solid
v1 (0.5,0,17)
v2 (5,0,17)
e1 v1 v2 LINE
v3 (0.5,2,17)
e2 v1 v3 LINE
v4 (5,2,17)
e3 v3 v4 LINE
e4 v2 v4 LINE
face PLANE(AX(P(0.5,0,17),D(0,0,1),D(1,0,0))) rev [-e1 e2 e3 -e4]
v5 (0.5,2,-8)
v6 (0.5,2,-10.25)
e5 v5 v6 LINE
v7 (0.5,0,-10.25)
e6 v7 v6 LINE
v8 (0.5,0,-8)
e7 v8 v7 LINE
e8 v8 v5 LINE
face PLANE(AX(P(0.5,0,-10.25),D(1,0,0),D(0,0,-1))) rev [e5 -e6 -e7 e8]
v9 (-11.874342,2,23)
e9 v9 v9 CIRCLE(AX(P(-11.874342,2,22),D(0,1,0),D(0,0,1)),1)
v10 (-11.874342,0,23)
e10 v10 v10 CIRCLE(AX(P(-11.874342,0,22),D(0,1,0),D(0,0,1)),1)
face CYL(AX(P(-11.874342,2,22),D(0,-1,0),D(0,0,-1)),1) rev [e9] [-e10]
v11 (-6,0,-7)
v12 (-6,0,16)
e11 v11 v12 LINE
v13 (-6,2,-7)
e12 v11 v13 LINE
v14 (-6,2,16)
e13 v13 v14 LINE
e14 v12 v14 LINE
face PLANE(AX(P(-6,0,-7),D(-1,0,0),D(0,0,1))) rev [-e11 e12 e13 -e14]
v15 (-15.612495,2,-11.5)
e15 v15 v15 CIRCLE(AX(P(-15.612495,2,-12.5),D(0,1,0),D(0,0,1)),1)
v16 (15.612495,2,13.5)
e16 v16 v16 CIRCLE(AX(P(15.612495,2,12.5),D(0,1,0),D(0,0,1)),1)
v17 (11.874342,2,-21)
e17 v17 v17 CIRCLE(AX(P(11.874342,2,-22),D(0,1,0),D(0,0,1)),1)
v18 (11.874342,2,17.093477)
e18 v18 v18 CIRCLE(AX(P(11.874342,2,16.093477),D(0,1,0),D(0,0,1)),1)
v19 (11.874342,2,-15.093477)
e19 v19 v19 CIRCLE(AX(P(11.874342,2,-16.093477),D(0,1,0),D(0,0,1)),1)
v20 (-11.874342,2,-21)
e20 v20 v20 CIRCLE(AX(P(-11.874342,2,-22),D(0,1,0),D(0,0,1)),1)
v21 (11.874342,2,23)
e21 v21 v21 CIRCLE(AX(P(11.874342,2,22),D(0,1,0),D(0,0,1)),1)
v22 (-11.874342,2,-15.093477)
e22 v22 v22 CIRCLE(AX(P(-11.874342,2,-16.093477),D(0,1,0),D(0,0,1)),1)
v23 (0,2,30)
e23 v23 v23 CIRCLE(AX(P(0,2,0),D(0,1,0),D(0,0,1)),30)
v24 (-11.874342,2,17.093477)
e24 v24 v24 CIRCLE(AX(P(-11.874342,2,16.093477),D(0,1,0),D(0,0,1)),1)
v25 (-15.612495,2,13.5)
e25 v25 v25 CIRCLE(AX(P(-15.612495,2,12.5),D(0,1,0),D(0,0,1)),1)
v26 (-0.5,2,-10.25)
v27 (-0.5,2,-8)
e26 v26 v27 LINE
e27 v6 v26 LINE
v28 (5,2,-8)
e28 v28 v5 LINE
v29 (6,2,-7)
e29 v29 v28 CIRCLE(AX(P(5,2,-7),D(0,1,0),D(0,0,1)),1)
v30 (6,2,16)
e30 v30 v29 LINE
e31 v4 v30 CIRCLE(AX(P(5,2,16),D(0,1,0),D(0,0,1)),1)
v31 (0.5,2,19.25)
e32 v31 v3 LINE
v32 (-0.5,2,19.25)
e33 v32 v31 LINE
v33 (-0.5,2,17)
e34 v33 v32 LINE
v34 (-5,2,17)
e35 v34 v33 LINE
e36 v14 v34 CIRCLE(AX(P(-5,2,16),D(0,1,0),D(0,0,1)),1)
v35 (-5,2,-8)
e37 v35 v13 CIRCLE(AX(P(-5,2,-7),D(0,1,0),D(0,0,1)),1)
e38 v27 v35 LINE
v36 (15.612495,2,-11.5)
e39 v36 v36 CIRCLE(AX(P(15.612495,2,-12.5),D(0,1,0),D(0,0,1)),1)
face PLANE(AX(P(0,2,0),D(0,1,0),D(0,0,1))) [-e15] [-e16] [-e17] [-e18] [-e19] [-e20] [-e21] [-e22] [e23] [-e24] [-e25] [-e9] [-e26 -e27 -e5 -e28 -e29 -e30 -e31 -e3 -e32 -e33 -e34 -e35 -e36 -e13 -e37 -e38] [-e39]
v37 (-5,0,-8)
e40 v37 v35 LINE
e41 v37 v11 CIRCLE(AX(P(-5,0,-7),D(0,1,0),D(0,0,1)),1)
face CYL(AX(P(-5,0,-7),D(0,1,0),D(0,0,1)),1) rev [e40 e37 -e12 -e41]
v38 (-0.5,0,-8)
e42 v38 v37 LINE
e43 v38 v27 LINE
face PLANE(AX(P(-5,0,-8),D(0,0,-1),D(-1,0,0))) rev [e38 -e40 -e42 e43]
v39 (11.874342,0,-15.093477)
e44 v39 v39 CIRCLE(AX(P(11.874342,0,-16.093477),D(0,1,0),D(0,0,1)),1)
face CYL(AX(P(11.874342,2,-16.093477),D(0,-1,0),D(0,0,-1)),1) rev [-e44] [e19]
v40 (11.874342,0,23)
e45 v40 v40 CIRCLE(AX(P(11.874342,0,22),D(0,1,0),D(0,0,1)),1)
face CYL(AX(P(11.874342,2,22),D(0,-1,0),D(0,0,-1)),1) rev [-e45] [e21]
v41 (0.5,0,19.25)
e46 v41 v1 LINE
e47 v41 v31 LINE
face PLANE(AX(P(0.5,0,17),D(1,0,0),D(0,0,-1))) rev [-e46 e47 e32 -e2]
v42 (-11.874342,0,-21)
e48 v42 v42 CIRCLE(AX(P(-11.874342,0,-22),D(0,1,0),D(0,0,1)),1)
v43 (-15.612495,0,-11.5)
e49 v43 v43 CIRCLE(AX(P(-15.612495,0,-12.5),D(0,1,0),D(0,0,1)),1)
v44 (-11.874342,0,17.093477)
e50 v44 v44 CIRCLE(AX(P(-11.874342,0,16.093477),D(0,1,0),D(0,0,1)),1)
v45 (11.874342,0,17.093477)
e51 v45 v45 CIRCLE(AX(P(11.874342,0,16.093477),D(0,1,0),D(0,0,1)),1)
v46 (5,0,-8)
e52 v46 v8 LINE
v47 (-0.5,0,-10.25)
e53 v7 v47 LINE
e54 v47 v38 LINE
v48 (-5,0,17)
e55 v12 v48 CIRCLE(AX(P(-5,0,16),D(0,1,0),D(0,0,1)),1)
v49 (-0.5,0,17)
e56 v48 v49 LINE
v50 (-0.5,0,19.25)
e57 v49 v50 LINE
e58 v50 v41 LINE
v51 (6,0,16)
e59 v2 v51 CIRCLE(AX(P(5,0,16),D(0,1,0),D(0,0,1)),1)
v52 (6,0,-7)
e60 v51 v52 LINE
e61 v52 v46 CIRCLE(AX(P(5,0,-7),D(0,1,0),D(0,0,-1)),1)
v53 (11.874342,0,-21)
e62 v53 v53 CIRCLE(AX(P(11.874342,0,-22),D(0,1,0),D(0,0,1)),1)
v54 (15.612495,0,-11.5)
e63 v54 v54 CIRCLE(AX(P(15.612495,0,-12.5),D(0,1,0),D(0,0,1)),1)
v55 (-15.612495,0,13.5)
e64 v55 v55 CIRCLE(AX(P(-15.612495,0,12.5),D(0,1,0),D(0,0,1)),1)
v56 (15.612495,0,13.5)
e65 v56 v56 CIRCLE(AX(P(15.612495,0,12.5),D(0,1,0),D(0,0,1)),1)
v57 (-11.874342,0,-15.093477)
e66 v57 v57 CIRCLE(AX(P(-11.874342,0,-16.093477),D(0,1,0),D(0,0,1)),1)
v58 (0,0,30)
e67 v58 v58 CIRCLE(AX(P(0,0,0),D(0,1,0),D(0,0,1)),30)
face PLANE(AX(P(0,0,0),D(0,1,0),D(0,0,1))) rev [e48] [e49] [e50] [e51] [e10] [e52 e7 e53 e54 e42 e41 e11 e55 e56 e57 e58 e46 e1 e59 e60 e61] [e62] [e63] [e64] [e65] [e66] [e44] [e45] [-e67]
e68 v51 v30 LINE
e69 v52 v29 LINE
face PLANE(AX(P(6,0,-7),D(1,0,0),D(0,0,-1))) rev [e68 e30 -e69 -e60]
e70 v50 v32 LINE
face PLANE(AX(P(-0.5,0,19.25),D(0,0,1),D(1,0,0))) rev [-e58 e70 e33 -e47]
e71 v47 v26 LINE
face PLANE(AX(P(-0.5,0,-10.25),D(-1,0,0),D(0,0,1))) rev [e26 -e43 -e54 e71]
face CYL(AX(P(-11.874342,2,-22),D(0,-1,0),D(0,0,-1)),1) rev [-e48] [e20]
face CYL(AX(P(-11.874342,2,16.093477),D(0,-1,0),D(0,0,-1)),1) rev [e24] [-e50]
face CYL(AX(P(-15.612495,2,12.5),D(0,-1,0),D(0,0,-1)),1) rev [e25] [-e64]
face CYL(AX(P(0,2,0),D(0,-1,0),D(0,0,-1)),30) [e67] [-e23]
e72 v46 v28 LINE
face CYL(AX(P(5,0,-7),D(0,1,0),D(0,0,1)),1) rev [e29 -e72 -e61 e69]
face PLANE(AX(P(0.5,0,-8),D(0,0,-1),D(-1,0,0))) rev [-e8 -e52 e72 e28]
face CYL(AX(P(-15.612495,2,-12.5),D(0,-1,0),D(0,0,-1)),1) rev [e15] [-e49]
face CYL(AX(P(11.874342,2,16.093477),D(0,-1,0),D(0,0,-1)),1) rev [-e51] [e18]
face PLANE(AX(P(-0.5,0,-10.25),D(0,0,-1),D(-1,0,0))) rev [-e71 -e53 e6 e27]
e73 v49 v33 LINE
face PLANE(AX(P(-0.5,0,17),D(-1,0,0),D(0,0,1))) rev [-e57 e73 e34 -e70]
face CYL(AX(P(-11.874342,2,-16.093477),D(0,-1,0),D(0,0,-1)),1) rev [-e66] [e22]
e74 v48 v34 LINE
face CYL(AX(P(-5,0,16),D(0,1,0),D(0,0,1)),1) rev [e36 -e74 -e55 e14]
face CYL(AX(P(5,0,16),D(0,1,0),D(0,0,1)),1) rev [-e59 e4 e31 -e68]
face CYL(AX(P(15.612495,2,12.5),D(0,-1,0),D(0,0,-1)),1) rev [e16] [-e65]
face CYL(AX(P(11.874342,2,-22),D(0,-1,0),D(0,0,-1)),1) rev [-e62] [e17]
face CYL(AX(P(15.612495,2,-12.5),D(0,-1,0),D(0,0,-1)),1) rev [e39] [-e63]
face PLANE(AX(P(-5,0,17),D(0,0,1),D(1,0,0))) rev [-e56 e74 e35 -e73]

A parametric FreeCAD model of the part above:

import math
import FreeCAD as App
import Part
import Sketcher
Q = App.Units.Quantity

doc = App.newDocument("Part")
body = doc.addObject("PartDesign::Body", "Body")

sketch1 = doc.addObject("Sketcher::SketchObject", "Sketch")
body.addObject(sketch1)
sketch1.AttachmentSupport = (doc.XZ_Plane, [""])
sketch1.MapMode = "FlatFace"
sketch1.addGeometry([
    Part.Circle(App.Vector(0, 0, 0), App.Vector(0, 0, 1), 30),
    Part.Circle(App.Vector(-15.612495, -12.5, 0), App.Vector(0, 0, 1), 1),
    Part.Circle(App.Vector(-11.874342, -22, 0), App.Vector(0, 0, 1), 1),
    Part.Circle(App.Vector(-11.874342, -16.093477, 0), App.Vector(0, 0, 1), 1),
    Part.Circle(App.Vector(-15.612495, 12.5, 0), App.Vector(0, 0, 1), 1),
    Part.Circle(App.Vector(-11.874342, 16.093477, 0), App.Vector(0, 0, 1), 1),
    Part.Circle(App.Vector(-11.874342, 22, 0), App.Vector(0, 0, 1), 1),
    Part.Circle(App.Vector(11.874342, -22, 0), App.Vector(0, 0, 1), 1),
    Part.Circle(App.Vector(11.874342, -16.093477, 0), App.Vector(0, 0, 1), 1),
    Part.Circle(App.Vector(15.612495, -12.5, 0), App.Vector(0, 0, 1), 1),
    Part.Circle(App.Vector(11.874342, 16.093477, 0), App.Vector(0, 0, 1), 1),
    Part.Circle(App.Vector(11.874342, 22, 0), App.Vector(0, 0, 1), 1),
    Part.Circle(App.Vector(15.612495, 12.5, 0), App.Vector(0, 0, 1), 1),
], False)
sketch1.addConstraint([
    Sketcher.Constraint("Coincident", 0, 3, -1, 1),
    Sketcher.Constraint("Equal", 1, 2),
    Sketcher.Constraint("Equal", 2, 3),
    Sketcher.Constraint("Equal", 3, 4),
    Sketcher.Constraint("Equal", 4, 5),
    Sketcher.Constraint("Equal", 5, 6),
    Sketcher.Constraint("Equal", 6, 7),
    Sketcher.Constraint("Equal", 7, 8),
    Sketcher.Constraint("Equal", 8, 9),
    Sketcher.Constraint("Equal", 9, 10),
    Sketcher.Constraint("Equal", 10, 11),
    Sketcher.Constraint("Equal", 11, 12),
    Sketcher.Constraint("Symmetric", 6, 3, 7, 3, -1, 1),
    Sketcher.Constraint("Symmetric", 5, 3, 8, 3, -1, 1),
    Sketcher.Constraint("Symmetric", 4, 3, 9, 3, -1, 1),
    Sketcher.Constraint("Symmetric", 3, 3, 10, 3, -1, 1),
    Sketcher.Constraint("Symmetric", 2, 3, 11, 3, -1, 1),
    Sketcher.Constraint("Symmetric", 1, 3, 12, 3, -1, 1),
    Sketcher.Constraint("Symmetric", 2, 3, 7, 3, -2),
    Sketcher.Constraint("Symmetric", 3, 3, 8, 3, -2),
    Sketcher.Constraint("Symmetric", 1, 3, 9, 3, -2),
    Sketcher.Constraint("Vertical", 2, 3, 3, 3),
    Sketcher.Constraint("Diameter", 0, Q("60 mm")),
    Sketcher.Constraint("Diameter", 1, Q("2 mm")),
    Sketcher.Constraint("DistanceY", 2, 3, -1, 1, Q("22 mm")),
    Sketcher.Constraint("DistanceY", 1, 3, 4, 3, Q("25 mm")),
    Sketcher.Constraint("DistanceX", 1, 3, -1, 1, Q("15.612495 mm")),
    Sketcher.Constraint("DistanceX", 2, 3, -1, 1, Q("11.874342 mm")),
    Sketcher.Constraint("DistanceY", 3, 3, -1, 1, Q("16.093477 mm")),
])
pad1 = doc.addObject("PartDesign::Pad", "Pad")
body.addObject(pad1)
pad1.Profile = sketch1
pad1.Length = 2
pad1.Reversed = True

sketch2 = doc.addObject("Sketcher::SketchObject", "Sketch001")
body.addObject(sketch2)
sketch2.AttachmentSupport = (doc.XZ_Plane, [""])
sketch2.MapMode = "FlatFace"
sketch2.AttachmentOffset = App.Placement(App.Vector(0, 0, -2), App.Rotation())
sketch2.addGeometry([
    Part.LineSegment(App.Vector(-0.5, -8, 0), App.Vector(-5, -8, 0)),
    Part.ArcOfCircle(Part.Circle(App.Vector(-5, -7, 0), App.Vector(0, 0, 1), 1), math.radians(-180), math.radians(-90)),
    Part.LineSegment(App.Vector(-6, -7, 0), App.Vector(-6, 16, 0)),
    Part.ArcOfCircle(Part.Circle(App.Vector(-5, 16, 0), App.Vector(0, 0, 1), 1), math.radians(90), math.radians(180)),
    Part.LineSegment(App.Vector(-5, 17, 0), App.Vector(-0.5, 17, 0)),
    Part.LineSegment(App.Vector(-0.5, 17, 0), App.Vector(-0.5, 19.25, 0)),
    Part.LineSegment(App.Vector(-0.5, 19.25, 0), App.Vector(0.5, 19.25, 0)),
    Part.LineSegment(App.Vector(0.5, 19.25, 0), App.Vector(0.5, 17, 0)),
    Part.LineSegment(App.Vector(0.5, 17, 0), App.Vector(5, 17, 0)),
    Part.ArcOfCircle(Part.Circle(App.Vector(5, 16, 0), App.Vector(0, 0, 1), 1), math.radians(0), math.radians(90)),
    Part.LineSegment(App.Vector(6, 16, 0), App.Vector(6, -7, 0)),
    Part.ArcOfCircle(Part.Circle(App.Vector(5, -7, 0), App.Vector(0, 0, 1), 1), math.radians(-90), math.radians(0)),
    Part.LineSegment(App.Vector(5, -8, 0), App.Vector(0.5, -8, 0)),
    Part.LineSegment(App.Vector(0.5, -8, 0), App.Vector(0.5, -10.25, 0)),
    Part.LineSegment(App.Vector(0.5, -10.25, 0), App.Vector(-0.5, -10.25, 0)),
    Part.LineSegment(App.Vector(-0.5, -10.25, 0), App.Vector(-0.5, -8, 0)),
], False)
sketch2.addConstraint([
    Sketcher.Constraint("Tangent", 0, 2, 1, 2),
    Sketcher.Constraint("Tangent", 1, 1, 2, 1),
    Sketcher.Constraint("Tangent", 2, 2, 3, 2),
    Sketcher.Constraint("Tangent", 3, 1, 4, 1),
    Sketcher.Constraint("Coincident", 4, 2, 5, 1),
    Sketcher.Constraint("Coincident", 5, 2, 6, 1),
    Sketcher.Constraint("Coincident", 6, 2, 7, 1),
    Sketcher.Constraint("Coincident", 7, 2, 8, 1),
    Sketcher.Constraint("Tangent", 8, 2, 9, 2),
    Sketcher.Constraint("Tangent", 9, 1, 10, 1),
    Sketcher.Constraint("Tangent", 10, 2, 11, 2),
    Sketcher.Constraint("Tangent", 11, 1, 12, 1),
    Sketcher.Constraint("Coincident", 12, 2, 13, 1),
    Sketcher.Constraint("Coincident", 13, 2, 14, 1),
    Sketcher.Constraint("Coincident", 14, 2, 15, 1),
    Sketcher.Constraint("Coincident", 15, 2, 0, 1),
    Sketcher.Constraint("Horizontal", 0),
    Sketcher.Constraint("Vertical", 2),
    Sketcher.Constraint("Horizontal", 4),
    Sketcher.Constraint("Vertical", 5),
    Sketcher.Constraint("Horizontal", 6),
    Sketcher.Constraint("Vertical", 7),
    Sketcher.Constraint("Horizontal", 8),
    Sketcher.Constraint("Vertical", 10),
    Sketcher.Constraint("Horizontal", 12),
    Sketcher.Constraint("Vertical", 13),
    Sketcher.Constraint("Horizontal", 14),
    Sketcher.Constraint("Vertical", 15),
    Sketcher.Constraint("Equal", 1, 3),
    Sketcher.Constraint("Equal", 3, 9),
    Sketcher.Constraint("Equal", 9, 11),
    Sketcher.Constraint("Symmetric", 3, 3, 9, 3, -2),
    Sketcher.Constraint("Symmetric", 12, 2, 15, 2, -2),
    Sketcher.Constraint("Vertical", 7, 2, 12, 2),
    Sketcher.Constraint("Vertical", 5, 2, 14, 2),
    Sketcher.Constraint("Equal", 7, 13),
    Sketcher.Constraint("Radius", 1, Q("1 mm")),
    Sketcher.Constraint("DistanceX", 6, 1, 6, 2, Q("1 mm")),
    Sketcher.Constraint("DistanceY", 2, 1, 2, 2, Q("23 mm")),
    Sketcher.Constraint("DistanceX", 0, 2, 0, 1, Q("4.5 mm")),
    Sketcher.Constraint("DistanceY", 1, 3, -1, 1, Q("7 mm")),
    Sketcher.Constraint("DistanceY", 5, 1, 5, 2, Q("2.25 mm")),
])
pocket1 = doc.addObject("PartDesign::Pocket", "Pocket")
body.addObject(pocket1)
pocket1.Profile = sketch2
pocket1.Type = "ThroughAll"
pocket1.Midplane = True

doc.recompute()
